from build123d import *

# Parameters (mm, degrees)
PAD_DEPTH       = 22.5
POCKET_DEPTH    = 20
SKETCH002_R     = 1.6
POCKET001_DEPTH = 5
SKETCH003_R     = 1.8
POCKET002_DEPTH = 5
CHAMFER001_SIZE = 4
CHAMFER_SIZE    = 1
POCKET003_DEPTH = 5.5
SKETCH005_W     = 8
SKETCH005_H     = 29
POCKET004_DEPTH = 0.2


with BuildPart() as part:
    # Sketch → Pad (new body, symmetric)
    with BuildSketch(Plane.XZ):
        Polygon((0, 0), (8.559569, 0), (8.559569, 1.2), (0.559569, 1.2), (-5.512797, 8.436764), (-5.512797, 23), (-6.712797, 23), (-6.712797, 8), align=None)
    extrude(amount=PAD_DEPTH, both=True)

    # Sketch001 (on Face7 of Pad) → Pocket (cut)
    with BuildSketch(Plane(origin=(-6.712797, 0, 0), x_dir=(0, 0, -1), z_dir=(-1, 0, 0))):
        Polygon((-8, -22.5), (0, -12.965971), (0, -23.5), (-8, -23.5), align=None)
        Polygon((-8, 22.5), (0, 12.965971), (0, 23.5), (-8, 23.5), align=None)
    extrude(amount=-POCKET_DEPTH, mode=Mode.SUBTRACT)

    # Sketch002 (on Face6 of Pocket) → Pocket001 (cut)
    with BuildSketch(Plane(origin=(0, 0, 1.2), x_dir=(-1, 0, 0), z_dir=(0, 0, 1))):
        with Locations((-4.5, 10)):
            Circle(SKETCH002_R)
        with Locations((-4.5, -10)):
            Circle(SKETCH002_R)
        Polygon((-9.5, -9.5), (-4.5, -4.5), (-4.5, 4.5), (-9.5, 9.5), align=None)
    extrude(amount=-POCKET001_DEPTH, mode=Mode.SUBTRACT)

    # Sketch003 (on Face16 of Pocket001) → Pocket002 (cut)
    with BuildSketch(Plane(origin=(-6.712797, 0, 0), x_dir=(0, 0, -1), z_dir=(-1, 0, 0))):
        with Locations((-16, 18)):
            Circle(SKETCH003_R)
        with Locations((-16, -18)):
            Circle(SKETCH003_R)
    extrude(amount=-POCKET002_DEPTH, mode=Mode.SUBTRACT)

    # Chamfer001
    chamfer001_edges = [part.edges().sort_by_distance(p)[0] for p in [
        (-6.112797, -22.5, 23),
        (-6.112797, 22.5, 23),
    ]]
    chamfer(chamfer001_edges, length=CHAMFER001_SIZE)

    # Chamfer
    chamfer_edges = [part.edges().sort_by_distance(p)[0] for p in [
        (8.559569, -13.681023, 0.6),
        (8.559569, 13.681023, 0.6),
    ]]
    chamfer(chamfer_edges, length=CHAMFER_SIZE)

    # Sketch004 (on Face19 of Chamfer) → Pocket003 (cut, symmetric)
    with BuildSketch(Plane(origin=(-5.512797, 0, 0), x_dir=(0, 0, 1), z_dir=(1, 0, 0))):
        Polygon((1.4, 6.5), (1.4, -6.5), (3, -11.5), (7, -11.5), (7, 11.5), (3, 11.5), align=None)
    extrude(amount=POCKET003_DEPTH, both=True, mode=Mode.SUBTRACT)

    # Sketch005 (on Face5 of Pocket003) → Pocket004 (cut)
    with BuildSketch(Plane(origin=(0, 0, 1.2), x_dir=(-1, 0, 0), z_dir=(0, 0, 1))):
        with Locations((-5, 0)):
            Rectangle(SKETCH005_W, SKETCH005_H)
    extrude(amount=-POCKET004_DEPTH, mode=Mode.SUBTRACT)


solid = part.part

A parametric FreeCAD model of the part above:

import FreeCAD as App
import Part
import Sketcher
from FreeCAD import Vector
Q = App.Units.Quantity


def edges_at(feature, points):
    """Names of the edges that pass closest to the given points."""
    edges = feature.Shape.Edges
    near = lambda p: min(range(len(edges)), key=lambda i: edges[i].distToShape(Part.Vertex(*p))[0])
    return sorted({f"Edge{near(p) + 1}" for p in points})


def add_polygon(sketch, points):
    """Adds a closed chain of lines whose ends are joined by coincident constraints."""
    first, n = sketch.GeometryCount, len(points)
    for a, b in zip(points, points[1:] + points[:1]):
        sketch.addGeometry(Part.LineSegment(App.Vector(*a, 0), App.Vector(*b, 0)), False)
    for i in range(n):
        sketch.addConstraint(Sketcher.Constraint("Coincident", first + i, 2, first + (i + 1) % n, 1))

doc = App.newDocument("Part")
body = doc.addObject("PartDesign::Body", "Body")

sketch1 = doc.addObject("Sketcher::SketchObject", "Sketch")
body.addObject(sketch1)
sketch1.AttachmentSupport = (doc.XZ_Plane, [""])
sketch1.MapMode = "FlatFace"
add_polygon(sketch1, [(0, 0), (8.6, 0), (8.6, 1.2), (0.6, 1.2), (-5.5, 8.4), (-5.5, 23), (-6.7, 23), (-6.7, 8)])
sketch1.addConstraint(Sketcher.Constraint("Horizontal", 0))
sketch1.addConstraint(Sketcher.Constraint("Vertical", 1))
sketch1.addConstraint(Sketcher.Constraint("Horizontal", 2))
sketch1.addConstraint(Sketcher.Constraint("Vertical", 4))
sketch1.addConstraint(Sketcher.Constraint("Horizontal", 5))
sketch1.addConstraint(Sketcher.Constraint("Vertical", 6))
sketch1.addConstraint(Sketcher.Constraint("Coincident", 7, 2, -1, 1))
sketch1.addConstraint(Sketcher.Constraint("Parallel", 3, 7))
sketch1.addConstraint(Sketcher.Constraint("Equal", 5, 1))
sketch1.addConstraint(Sketcher.Constraint("DistanceX", 2, 2, 2, 1, Q("8 mm")))
sketch1.addConstraint(Sketcher.Constraint("DistanceY", 6, 2, 6, 1, Q("15 mm")))
sketch1.addConstraint(Sketcher.Constraint("Angle", 3, Q("130 deg")))
sketch1.addConstraint(Sketcher.Constraint("DistanceX", 5, 2, 5, 1, Q("1.2 mm")))
sketch1.addConstraint(Sketcher.Constraint("DistanceY", -1, 1, 4, 2, Q("23 mm")))
sketch1.addConstraint(Sketcher.Constraint("DistanceX", 0, 1, 0, 2, Q("8.559569 mm")))
pad1 = doc.addObject("PartDesign::Pad", "Pad")
body.addObject(pad1)
pad1.Profile = sketch1
pad1.Length = 45
pad1.Midplane = True

sketch2 = doc.addObject("Sketcher::SketchObject", "Sketch001")
body.addObject(sketch2)
sketch2.AttachmentSupport = (doc.YZ_Plane, [""])
sketch2.MapMode = "FlatFace"
sketch2.AttachmentOffset = App.Placement(Vector(0, 0, -6.712797), App.Rotation())
add_polygon(sketch2, [(13, 0), (22.5, 8), (23.5, 8), (23.5, 0)])
add_polygon(sketch2, [(-22.5, 8), (-13, 0), (-23.5, 0), (-23.5, 8)])
sketch2.addConstraint(Sketcher.Constraint("Horizontal", 1))
sketch2.addConstraint(Sketcher.Constraint("Vertical", 2))
sketch2.addConstraint(Sketcher.Constraint("Horizontal", 3))
sketch2.addConstraint(Sketcher.Constraint("Horizontal", 5))
sketch2.addConstraint(Sketcher.Constraint("Vertical", 6))
sketch2.addConstraint(Sketcher.Constraint("Horizontal", 7))
sketch2.addConstraint(Sketcher.Constraint("Symmetric", 3, 2, 4, 2, -1, 1))
sketch2.addConstraint(Sketcher.Constraint("Symmetric", 2, 2, 5, 2, -2))
sketch2.addConstraint(Sketcher.Constraint("Symmetric", 0, 2, 7, 2, -2))
sketch2.addConstraint(Sketcher.Constraint("DistanceX", 1, 1, 1, 2, Q("1 mm")))
sketch2.addConstraint(Sketcher.Constraint("DistanceY", 2, 2, 2, 1, Q("8 mm")))
sketch2.addConstraint(Sketcher.Constraint("Angle", 0, Q("39.999999 deg")))
sketch2.addConstraint(Sketcher.Constraint("DistanceX", 5, 2, 0, 2, Q("46 mm")))
pocket1 = doc.addObject("PartDesign::Pocket", "Pocket")
body.addObject(pocket1)
pocket1.Profile = sketch2
pocket1.Length = 20
pocket1.Reversed = True

sketch3 = doc.addObject("Sketcher::SketchObject", "Sketch002")
body.addObject(sketch3)
sketch3.AttachmentSupport = (doc.XY_Plane, [""])
sketch3.MapMode = "FlatFace"
sketch3.AttachmentOffset = App.Placement(Vector(0, 0, 1.2), App.Rotation())
sketch3.addGeometry(Part.Circle(Vector(4.5, -10, 0), Vector(0, 0, 1), 1.6), False)
sketch3.addGeometry(Part.Circle(Vector(4.5, 10, 0), Vector(0, 0, 1), 1.6), False)
add_polygon(sketch3, [(9.5, 9.5), (4.5, 4.5), (4.5, -4.5), (9.5, -9.5)])
sketch3.addConstraint(Sketcher.Constraint("Vertical", 3))
sketch3.addConstraint(Sketcher.Constraint("Vertical", 5))
sketch3.addConstraint(Sketcher.Constraint("Equal", 0, 1))
sketch3.addConstraint(Sketcher.Constraint("Symmetric", 0, 3, 1, 3, -1))
sketch3.addConstraint(Sketcher.Constraint("Perpendicular", 2, 4))
sketch3.addConstraint(Sketcher.Constraint("Vertical", 1, 3, 2, 2))
sketch3.addConstraint(Sketcher.Constraint("Equal", 2, 4))
sketch3.addConstraint(Sketcher.Constraint("Diameter", 0, Q("3.2 mm")))
sketch3.addConstraint(Sketcher.Constraint("DistanceY", 3, 2, 3, 1, Q("9 mm")))
sketch3.addConstraint(Sketcher.Constraint("DistanceY", 5, 1, 5, 2, Q("19 mm")))
sketch3.addConstraint(Sketcher.Constraint("DistanceY", 0, 3, -1, 1, Q("10 mm")))
sketch3.addConstraint(Sketcher.Constraint("DistanceX", -1, 1, 0, 3, Q("4.5 mm")))
sketch3.addConstraint(Sketcher.Constraint("DistanceY", -1, 1, 2, 2, Q("4.5 mm")))
pocket2 = doc.addObject("PartDesign::Pocket", "Pocket001")
body.addObject(pocket2)
pocket2.Profile = sketch3
pocket2.Length = 5

sketch4 = doc.addObject("Sketcher::SketchObject", "Sketch003")
body.addObject(sketch4)
sketch4.AttachmentSupport = (doc.YZ_Plane, [""])
sketch4.MapMode = "FlatFace"
sketch4.AttachmentOffset = App.Placement(Vector(0, 0, -6.712797), App.Rotation())
sketch4.addGeometry(Part.Circle(Vector(-18, 16, 0), Vector(0, 0, 1), 1.8), False)
sketch4.addGeometry(Part.Circle(Vector(18, 16, 0), Vector(0, 0, 1), 1.8), False)
sketch4.addConstraint(Sketcher.Constraint("Equal", 0, 1))
sketch4.addConstraint(Sketcher.Constraint("Symmetric", 0, 3, 1, 3, -2))
sketch4.addConstraint(Sketcher.Constraint("Diameter", 0, Q("3.6 mm")))
sketch4.addConstraint(Sketcher.Constraint("DistanceX", 0, 3, -1, 1, Q("18 mm")))
sketch4.addConstraint(Sketcher.Constraint("DistanceY", -1, 1, 0, 3, Q("16 mm")))
pocket3 = doc.addObject("PartDesign::Pocket", "Pocket002")
body.addObject(pocket3)
pocket3.Profile = sketch4
pocket3.Length = 5
pocket3.Reversed = True
doc.recompute()

chamfer = doc.addObject("PartDesign::Chamfer", "Chamfer")
body.addObject(chamfer)
chamfer.Base = (pocket3, edges_at(pocket3, [(-6.113, -22.5, 23), (-6.113, 22.5, 23)]))
chamfer.Size = 4
doc.recompute()

chamfer2 = doc.addObject("PartDesign::Chamfer", "Chamfer001")
body.addObject(chamfer2)
chamfer2.Base = (chamfer, edges_at(chamfer, [(8.56, -13.681, 0.6), (8.56, 13.681, 0.6)]))
chamfer2.Size = 1

sketch5 = doc.addObject("Sketcher::SketchObject", "Sketch004")
body.addObject(sketch5)
sketch5.AttachmentSupport = (doc.YZ_Plane, [""])
sketch5.MapMode = "FlatFace"
sketch5.AttachmentOffset = App.Placement(Vector(0, 0, -5.512797), App.Rotation())
add_polygon(sketch5, [(-6.5, 1.4), (6.5, 1.4), (11.5, 3), (11.5, 7), (-11.5, 7), (-11.5, 3)])
sketch5.addConstraint(Sketcher.Constraint("Horizontal", 0))
sketch5.addConstraint(Sketcher.Constraint("Vertical", 2))
sketch5.addConstraint(Sketcher.Constraint("Horizontal", 3))
sketch5.addConstraint(Sketcher.Constraint("Vertical", 4))
sketch5.addConstraint(Sketcher.Constraint("Symmetric", 1, 2, 4, 2, -2))
sketch5.addConstraint(Sketcher.Constraint("Equal", 1, 5))
sketch5.addConstraint(Sketcher.Constraint("DistanceX", 0, 1, 0, 2, Q("13 mm")))
sketch5.addConstraint(Sketcher.Constraint("DistanceX", 3, 2, 3, 1, Q("23 mm")))
sketch5.addConstraint(Sketcher.Constraint("DistanceY", 2, 1, 2, 2, Q("4 mm")))
sketch5.addConstraint(Sketcher.Constraint("DistanceY", -1, 1, 1, 2, Q("3 mm")))
sketch5.addConstraint(Sketcher.Constraint("DistanceY", -1, 1, 0, 2, Q("1.4 mm")))
pocket4 = doc.addObject("PartDesign::Pocket", "Pocket003")
body.addObject(pocket4)
pocket4.Profile = sketch5
pocket4.Length = 11
pocket4.Midplane = True

sketch6 = doc.addObject("Sketcher::SketchObject", "Sketch005")
body.addObject(sketch6)
sketch6.AttachmentSupport = (doc.XY_Plane, [""])
sketch6.MapMode = "FlatFace"
sketch6.AttachmentOffset = App.Placement(Vector(0, 0, 1.2), App.Rotation())
add_polygon(sketch6, [(9, -14), (9, 14), (1, 14), (1, -14)])
sketch6.addConstraint(Sketcher.Constraint("Vertical", 0))
sketch6.addConstraint(Sketcher.Constraint("Horizontal", 1))
sketch6.addConstraint(Sketcher.Constraint("Vertical", 2))
sketch6.addConstraint(Sketcher.Constraint("Horizontal", 3))
sketch6.addConstraint(Sketcher.Constraint("DistanceX", 1, 2, 1, 1, Q("8 mm")))
sketch6.addConstraint(Sketcher.Constraint("DistanceY", 0, 1, 0, 2, Q("29 mm")))
sketch6.addConstraint(Sketcher.Constraint("DistanceX", -1, 1, 0, 2, Q("9 mm")))
sketch6.addConstraint(Sketcher.Constraint("DistanceY", -1, 1, 0, 2, Q("14.5 mm")))
pocket5 = doc.addObject("PartDesign::Pocket", "Pocket004")
body.addObject(pocket5)
pocket5.Profile = sketch6
pocket5.Length = 0.2

doc.recompute()
